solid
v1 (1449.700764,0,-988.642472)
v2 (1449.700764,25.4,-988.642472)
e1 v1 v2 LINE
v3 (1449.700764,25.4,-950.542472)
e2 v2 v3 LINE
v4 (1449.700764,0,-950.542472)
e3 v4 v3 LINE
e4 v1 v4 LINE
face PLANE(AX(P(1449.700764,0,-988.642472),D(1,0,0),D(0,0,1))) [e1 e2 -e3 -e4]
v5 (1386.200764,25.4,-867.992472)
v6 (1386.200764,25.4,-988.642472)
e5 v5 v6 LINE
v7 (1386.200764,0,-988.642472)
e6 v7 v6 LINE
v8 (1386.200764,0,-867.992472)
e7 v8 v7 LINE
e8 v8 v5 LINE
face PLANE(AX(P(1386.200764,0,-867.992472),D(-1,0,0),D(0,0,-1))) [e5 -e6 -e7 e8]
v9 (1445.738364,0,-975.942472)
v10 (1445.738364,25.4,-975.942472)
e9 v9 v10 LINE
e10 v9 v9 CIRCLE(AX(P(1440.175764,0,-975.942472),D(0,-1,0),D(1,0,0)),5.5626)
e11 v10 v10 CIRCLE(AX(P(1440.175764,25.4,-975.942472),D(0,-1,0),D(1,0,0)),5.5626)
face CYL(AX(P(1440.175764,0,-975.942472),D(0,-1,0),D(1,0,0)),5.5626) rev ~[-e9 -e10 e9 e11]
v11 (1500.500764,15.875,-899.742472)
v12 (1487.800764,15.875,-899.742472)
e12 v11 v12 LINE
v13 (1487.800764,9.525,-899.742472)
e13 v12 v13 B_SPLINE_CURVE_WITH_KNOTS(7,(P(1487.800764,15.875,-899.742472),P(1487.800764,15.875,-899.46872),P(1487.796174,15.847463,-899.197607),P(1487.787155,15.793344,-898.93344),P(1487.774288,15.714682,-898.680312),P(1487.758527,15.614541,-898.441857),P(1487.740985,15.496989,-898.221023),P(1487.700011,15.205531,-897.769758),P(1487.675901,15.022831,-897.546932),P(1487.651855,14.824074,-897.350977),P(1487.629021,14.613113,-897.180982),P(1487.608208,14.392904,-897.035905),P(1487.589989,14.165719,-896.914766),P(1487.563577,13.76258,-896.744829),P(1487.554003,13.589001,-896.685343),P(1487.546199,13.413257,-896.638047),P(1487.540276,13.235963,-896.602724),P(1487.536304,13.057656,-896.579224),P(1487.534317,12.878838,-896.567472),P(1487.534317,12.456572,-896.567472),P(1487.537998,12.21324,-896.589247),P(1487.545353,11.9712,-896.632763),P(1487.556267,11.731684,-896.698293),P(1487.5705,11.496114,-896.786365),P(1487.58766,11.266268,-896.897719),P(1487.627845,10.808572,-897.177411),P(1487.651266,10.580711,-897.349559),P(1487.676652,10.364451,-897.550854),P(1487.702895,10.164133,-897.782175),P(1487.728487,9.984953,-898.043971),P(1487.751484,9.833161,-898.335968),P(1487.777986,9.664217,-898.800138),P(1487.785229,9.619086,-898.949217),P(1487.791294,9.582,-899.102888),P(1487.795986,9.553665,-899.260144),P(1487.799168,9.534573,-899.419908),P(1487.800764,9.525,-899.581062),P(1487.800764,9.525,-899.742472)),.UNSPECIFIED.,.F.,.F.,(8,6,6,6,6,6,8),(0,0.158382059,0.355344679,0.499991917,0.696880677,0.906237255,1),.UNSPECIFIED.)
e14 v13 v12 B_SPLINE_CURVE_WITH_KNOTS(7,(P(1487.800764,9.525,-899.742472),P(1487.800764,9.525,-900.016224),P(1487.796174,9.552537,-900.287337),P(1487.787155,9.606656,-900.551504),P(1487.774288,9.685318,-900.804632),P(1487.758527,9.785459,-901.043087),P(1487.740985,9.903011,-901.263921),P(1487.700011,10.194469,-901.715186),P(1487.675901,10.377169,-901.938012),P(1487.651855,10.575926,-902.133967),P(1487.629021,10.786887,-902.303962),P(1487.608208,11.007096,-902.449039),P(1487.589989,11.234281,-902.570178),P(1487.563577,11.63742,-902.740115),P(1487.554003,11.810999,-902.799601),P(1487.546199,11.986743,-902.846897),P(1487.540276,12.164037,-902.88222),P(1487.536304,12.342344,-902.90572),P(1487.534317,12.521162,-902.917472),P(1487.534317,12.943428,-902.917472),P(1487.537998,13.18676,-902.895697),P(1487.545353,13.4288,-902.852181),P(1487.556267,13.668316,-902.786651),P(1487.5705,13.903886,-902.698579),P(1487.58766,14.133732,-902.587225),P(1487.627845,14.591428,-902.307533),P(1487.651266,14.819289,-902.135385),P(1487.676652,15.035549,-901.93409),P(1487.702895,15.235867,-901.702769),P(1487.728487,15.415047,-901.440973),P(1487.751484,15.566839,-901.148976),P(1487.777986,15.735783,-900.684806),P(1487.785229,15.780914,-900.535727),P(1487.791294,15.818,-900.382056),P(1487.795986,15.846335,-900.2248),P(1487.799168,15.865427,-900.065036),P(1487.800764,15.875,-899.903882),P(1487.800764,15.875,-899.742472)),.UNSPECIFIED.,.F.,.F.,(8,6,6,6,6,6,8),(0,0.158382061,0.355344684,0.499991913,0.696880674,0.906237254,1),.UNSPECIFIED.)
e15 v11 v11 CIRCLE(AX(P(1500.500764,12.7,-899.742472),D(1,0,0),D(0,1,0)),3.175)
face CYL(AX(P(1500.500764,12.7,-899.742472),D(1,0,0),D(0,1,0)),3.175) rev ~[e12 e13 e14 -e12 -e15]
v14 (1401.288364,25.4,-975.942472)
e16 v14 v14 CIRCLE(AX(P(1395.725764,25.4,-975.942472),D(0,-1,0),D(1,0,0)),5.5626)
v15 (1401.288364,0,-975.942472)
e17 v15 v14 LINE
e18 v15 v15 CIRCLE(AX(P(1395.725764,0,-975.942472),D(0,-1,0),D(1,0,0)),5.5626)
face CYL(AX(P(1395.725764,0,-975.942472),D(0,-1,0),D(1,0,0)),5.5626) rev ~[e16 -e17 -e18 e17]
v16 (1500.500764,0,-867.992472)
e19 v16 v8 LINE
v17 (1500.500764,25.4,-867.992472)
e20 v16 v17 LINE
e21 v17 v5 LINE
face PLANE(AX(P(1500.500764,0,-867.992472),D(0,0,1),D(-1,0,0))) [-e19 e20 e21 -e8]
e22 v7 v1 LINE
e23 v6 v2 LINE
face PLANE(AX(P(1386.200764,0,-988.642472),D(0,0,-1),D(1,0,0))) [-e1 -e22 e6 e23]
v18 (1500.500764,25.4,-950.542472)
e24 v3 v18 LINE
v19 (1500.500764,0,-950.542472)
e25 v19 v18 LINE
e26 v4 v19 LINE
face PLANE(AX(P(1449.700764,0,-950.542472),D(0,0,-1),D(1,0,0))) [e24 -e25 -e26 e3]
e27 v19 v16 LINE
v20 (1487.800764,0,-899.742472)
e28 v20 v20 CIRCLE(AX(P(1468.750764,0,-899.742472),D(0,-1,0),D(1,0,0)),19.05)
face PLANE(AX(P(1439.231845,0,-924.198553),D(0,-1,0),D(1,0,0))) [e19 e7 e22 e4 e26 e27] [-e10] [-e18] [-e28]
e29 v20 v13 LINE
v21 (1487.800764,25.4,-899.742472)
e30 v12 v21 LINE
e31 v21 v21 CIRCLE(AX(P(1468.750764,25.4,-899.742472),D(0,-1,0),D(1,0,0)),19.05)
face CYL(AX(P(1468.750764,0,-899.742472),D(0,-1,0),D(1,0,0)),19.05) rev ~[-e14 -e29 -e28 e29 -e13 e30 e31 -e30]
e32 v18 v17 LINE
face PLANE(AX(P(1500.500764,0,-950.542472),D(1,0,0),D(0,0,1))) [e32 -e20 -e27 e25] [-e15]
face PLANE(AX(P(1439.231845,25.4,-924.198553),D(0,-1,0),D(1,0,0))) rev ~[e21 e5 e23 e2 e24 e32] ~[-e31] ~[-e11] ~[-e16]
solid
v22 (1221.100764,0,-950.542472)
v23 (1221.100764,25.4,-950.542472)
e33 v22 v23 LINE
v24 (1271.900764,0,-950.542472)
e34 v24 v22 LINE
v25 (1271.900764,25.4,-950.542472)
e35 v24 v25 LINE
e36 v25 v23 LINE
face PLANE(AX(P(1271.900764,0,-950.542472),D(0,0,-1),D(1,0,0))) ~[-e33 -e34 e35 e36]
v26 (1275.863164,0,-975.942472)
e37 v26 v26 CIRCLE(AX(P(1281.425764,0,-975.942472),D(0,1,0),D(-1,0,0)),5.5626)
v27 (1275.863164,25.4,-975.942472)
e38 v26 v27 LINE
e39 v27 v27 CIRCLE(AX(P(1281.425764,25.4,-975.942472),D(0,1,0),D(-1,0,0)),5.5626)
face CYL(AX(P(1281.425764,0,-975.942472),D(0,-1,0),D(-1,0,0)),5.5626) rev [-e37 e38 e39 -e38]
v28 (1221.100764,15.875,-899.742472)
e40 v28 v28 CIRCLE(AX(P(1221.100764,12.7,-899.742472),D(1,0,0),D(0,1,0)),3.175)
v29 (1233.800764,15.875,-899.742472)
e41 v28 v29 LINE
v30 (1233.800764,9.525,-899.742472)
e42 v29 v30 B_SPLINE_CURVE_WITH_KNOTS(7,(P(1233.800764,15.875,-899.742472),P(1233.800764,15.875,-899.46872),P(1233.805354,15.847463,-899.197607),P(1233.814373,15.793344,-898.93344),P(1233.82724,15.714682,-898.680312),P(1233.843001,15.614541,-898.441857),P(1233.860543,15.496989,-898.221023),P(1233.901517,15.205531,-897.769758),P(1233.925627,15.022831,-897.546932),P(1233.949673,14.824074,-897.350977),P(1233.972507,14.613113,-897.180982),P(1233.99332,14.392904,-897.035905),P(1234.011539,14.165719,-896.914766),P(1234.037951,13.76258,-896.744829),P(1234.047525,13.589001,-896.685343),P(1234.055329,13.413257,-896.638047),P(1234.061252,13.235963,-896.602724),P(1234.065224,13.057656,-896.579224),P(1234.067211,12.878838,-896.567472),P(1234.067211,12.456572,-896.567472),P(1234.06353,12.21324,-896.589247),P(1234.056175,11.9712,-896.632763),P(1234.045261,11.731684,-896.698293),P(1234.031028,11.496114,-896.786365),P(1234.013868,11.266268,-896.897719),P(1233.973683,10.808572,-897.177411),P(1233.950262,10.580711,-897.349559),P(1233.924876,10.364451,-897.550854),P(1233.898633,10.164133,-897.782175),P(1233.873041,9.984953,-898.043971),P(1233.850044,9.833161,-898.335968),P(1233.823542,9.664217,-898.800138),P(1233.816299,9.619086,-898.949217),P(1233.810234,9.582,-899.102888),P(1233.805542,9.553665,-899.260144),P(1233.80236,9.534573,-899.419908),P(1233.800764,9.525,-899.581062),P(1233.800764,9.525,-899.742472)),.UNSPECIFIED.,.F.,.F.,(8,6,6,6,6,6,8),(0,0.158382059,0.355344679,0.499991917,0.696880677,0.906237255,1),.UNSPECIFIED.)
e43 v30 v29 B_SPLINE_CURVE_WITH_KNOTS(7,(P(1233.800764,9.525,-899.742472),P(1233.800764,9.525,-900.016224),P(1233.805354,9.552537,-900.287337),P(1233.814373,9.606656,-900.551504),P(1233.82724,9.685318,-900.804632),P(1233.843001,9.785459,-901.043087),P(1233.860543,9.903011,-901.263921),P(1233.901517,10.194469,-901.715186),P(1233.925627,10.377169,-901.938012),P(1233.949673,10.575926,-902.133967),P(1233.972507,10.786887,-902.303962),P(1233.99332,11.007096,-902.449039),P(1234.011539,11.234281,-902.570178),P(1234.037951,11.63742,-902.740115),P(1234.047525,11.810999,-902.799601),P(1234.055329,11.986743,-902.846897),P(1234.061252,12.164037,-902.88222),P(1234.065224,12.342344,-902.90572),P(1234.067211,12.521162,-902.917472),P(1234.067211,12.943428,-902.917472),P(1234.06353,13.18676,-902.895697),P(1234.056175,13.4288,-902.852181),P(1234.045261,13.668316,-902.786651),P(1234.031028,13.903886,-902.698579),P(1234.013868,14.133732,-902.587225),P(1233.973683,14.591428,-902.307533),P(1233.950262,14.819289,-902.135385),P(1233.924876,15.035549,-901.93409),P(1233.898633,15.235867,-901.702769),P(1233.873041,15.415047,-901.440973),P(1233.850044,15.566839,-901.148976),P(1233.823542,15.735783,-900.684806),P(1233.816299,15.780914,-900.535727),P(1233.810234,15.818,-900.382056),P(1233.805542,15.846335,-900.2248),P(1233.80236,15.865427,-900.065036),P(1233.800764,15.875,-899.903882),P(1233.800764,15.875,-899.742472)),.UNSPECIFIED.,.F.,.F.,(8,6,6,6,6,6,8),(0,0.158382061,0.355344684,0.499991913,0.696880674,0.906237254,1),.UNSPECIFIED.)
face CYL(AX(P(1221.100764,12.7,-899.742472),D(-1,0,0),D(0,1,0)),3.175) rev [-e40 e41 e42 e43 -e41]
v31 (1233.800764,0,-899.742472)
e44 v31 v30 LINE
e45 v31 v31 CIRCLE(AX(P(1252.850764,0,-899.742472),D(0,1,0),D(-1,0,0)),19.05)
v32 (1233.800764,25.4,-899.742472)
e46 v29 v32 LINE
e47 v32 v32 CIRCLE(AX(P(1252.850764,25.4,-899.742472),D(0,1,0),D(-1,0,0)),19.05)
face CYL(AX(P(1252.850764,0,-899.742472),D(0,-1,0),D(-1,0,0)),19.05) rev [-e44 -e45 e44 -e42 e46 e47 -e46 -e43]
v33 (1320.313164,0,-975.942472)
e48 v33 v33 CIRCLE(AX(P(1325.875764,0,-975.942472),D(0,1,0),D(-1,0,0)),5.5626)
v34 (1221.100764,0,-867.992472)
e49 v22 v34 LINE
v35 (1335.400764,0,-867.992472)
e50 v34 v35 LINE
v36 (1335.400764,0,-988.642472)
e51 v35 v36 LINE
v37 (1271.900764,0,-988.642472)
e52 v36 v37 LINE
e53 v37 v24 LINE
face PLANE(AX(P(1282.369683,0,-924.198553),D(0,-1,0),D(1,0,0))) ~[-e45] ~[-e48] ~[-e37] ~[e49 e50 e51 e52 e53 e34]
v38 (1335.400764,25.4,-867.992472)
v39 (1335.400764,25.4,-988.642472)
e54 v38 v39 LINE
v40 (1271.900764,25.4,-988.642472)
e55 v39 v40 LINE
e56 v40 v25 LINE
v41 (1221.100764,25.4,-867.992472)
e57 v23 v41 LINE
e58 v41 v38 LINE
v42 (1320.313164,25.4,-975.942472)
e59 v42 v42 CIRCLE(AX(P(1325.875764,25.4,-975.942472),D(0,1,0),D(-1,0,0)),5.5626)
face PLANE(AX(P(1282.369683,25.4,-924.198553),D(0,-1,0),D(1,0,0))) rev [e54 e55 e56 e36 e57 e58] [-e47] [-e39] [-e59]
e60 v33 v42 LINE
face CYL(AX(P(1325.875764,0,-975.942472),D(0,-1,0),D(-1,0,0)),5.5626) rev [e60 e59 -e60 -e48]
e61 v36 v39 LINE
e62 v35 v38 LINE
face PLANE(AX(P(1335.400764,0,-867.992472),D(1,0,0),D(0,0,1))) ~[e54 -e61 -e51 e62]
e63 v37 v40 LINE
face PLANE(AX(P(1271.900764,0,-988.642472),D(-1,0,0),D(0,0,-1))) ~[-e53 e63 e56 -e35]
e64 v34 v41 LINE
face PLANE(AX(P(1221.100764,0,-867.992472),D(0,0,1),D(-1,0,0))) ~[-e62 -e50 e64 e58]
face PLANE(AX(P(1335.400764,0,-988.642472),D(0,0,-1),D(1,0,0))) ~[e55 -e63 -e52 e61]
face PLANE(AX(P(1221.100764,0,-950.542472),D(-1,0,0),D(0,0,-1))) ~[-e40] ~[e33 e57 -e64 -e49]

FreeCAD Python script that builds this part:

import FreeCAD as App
import Part
import Sketcher

V = App.Vector
Q = App.Units.Quantity


def add_polygon(sketch, points):
    """Adds a closed chain of lines whose ends are joined by coincident constraints."""
    first, n = sketch.GeometryCount, len(points)
    for a, b in zip(points, points[1:] + points[:1]):
        sketch.addGeometry(Part.LineSegment(App.Vector(*a, 0), App.Vector(*b, 0)), False)
    for i in range(n):
        sketch.addConstraint(Sketcher.Constraint("Coincident", first + i, 2, first + (i + 1) % n, 1))

doc = App.newDocument("Part")
body = doc.addObject("PartDesign::Body", "Body")

# Sketch on XZ plane
sketch1 = doc.addObject("Sketcher::SketchObject", "Sketch")
body.addObject(sketch1)
sketch1.AttachmentSupport = (doc.XZ_Plane, [""])
sketch1.MapMode = "FlatFace"
add_polygon(sketch1, [(1386, -868), (1386, -989), (1450, -989), (1450, -951), (1501, -951), (1501, -868)])  # lines 0-5
sketch1.addGeometry(Part.Circle(V(1396, -976, 0), V(0, 0, 1), 6), False)  # 6
sketch1.addGeometry(Part.Circle(V(1440, -976, 0), V(0, 0, 1), 6), False)  # 7
sketch1.addGeometry(Part.Circle(V(1469, -900, 0), V(0, 0, 1), 19), False)  # 8
sketch1.addConstraint(Sketcher.Constraint("Vertical", 0))
sketch1.addConstraint(Sketcher.Constraint("Horizontal", 1))
sketch1.addConstraint(Sketcher.Constraint("Vertical", 2))
sketch1.addConstraint(Sketcher.Constraint("Horizontal", 3))
sketch1.addConstraint(Sketcher.Constraint("Vertical", 4))
sketch1.addConstraint(Sketcher.Constraint("Horizontal", 5))
sketch1.addConstraint(Sketcher.Constraint("Equal", 6, 7))
sketch1.addConstraint(Sketcher.Constraint("Horizontal", 6, 3, 7, 3))
sketch1.addConstraint(Sketcher.Constraint("Diameter", 8, Q("1.5 in")))
sketch1.addConstraint(Sketcher.Constraint("DistanceX", 3, 1, 3, 2, Q("2 in")))
sketch1.addConstraint(Sketcher.Constraint("Diameter", 6, Q("0.438 in")))
sketch1.addConstraint(Sketcher.Constraint("DistanceX", 1, 1, 1, 2, Q("2.5 in")))
sketch1.addConstraint(Sketcher.Constraint("DistanceY", 2, 1, 2, 2, Q("1.5 in")))
sketch1.addConstraint(Sketcher.Constraint("DistanceY", 7, 3, 8, 3, Q("3 in")))
sketch1.addConstraint(Sketcher.Constraint("DistanceY", 7, 3, 2, 2, Q("1 in")))
sketch1.addConstraint(Sketcher.Constraint("DistanceY", 0, 2, 0, 1, Q("4.75 in")))
sketch1.addConstraint(Sketcher.Constraint("DistanceX", 6, 3, 7, 3, Q("1.75 in")))
sketch1.addConstraint(Sketcher.Constraint("DistanceX", 0, 2, 8, 3, Q("3.25 in")))
sketch1.addConstraint(Sketcher.Constraint("DistanceX", 7, 3, 8, 3, Q("1.125 in")))
sketch1.addConstraint(Sketcher.Constraint("DistanceY", 6, 3, -1, 1, 975.942472))
sketch1.addConstraint(Sketcher.Constraint("DistanceX", -1, 1, 6, 3, 1395.725764))
pad1 = doc.addObject("PartDesign::Pad", "Pad")
body.addObject(pad1)
pad1.Profile = sketch1
pad1.Length = Q("1 in")
pad1.Reversed = True

# Sketch on YZ plane
sketch2 = doc.addObject("Sketcher::SketchObject", "Sketch001")
body.addObject(sketch2)
sketch2.AttachmentSupport = (doc.YZ_Plane, [""])
sketch2.MapMode = "FlatFace"
sketch2.AttachmentOffset = App.Placement(V(0, 0, 1500.500764), App.Rotation())
sketch2.addGeometry(Part.Circle(V(12.7, -899.7, 0), V(0, 0, 1), 3.2), False)
sketch2.addConstraint(Sketcher.Constraint("Diameter", 0, Q("0.25 in")))
sketch2.addConstraint(Sketcher.Constraint("DistanceX", -1, 1, 0, 3, Q("0.5 in")))
sketch2.addConstraint(Sketcher.Constraint("DistanceY", 0, 3, -1, 1, 899.742472))
pocket1 = doc.addObject("PartDesign::Pocket", "Pocket")
body.addObject(pocket1)
pocket1.Profile = sketch2
pocket1.Length = Q("1 in")
body2 = doc.addObject("PartDesign::Body", "Body001")
doc.recompute()

mirroring = doc.addObject("Part::Mirroring", "Mirroring")
mirroring.Source = body
mirroring.Base = V(1360.800764, 12.7, -928.317472)
mirroring.Normal = V(-1, 0, 0)
body2.BaseFeature = mirroring
doc.recompute()
mirroring.Visibility = False

doc.recompute()
